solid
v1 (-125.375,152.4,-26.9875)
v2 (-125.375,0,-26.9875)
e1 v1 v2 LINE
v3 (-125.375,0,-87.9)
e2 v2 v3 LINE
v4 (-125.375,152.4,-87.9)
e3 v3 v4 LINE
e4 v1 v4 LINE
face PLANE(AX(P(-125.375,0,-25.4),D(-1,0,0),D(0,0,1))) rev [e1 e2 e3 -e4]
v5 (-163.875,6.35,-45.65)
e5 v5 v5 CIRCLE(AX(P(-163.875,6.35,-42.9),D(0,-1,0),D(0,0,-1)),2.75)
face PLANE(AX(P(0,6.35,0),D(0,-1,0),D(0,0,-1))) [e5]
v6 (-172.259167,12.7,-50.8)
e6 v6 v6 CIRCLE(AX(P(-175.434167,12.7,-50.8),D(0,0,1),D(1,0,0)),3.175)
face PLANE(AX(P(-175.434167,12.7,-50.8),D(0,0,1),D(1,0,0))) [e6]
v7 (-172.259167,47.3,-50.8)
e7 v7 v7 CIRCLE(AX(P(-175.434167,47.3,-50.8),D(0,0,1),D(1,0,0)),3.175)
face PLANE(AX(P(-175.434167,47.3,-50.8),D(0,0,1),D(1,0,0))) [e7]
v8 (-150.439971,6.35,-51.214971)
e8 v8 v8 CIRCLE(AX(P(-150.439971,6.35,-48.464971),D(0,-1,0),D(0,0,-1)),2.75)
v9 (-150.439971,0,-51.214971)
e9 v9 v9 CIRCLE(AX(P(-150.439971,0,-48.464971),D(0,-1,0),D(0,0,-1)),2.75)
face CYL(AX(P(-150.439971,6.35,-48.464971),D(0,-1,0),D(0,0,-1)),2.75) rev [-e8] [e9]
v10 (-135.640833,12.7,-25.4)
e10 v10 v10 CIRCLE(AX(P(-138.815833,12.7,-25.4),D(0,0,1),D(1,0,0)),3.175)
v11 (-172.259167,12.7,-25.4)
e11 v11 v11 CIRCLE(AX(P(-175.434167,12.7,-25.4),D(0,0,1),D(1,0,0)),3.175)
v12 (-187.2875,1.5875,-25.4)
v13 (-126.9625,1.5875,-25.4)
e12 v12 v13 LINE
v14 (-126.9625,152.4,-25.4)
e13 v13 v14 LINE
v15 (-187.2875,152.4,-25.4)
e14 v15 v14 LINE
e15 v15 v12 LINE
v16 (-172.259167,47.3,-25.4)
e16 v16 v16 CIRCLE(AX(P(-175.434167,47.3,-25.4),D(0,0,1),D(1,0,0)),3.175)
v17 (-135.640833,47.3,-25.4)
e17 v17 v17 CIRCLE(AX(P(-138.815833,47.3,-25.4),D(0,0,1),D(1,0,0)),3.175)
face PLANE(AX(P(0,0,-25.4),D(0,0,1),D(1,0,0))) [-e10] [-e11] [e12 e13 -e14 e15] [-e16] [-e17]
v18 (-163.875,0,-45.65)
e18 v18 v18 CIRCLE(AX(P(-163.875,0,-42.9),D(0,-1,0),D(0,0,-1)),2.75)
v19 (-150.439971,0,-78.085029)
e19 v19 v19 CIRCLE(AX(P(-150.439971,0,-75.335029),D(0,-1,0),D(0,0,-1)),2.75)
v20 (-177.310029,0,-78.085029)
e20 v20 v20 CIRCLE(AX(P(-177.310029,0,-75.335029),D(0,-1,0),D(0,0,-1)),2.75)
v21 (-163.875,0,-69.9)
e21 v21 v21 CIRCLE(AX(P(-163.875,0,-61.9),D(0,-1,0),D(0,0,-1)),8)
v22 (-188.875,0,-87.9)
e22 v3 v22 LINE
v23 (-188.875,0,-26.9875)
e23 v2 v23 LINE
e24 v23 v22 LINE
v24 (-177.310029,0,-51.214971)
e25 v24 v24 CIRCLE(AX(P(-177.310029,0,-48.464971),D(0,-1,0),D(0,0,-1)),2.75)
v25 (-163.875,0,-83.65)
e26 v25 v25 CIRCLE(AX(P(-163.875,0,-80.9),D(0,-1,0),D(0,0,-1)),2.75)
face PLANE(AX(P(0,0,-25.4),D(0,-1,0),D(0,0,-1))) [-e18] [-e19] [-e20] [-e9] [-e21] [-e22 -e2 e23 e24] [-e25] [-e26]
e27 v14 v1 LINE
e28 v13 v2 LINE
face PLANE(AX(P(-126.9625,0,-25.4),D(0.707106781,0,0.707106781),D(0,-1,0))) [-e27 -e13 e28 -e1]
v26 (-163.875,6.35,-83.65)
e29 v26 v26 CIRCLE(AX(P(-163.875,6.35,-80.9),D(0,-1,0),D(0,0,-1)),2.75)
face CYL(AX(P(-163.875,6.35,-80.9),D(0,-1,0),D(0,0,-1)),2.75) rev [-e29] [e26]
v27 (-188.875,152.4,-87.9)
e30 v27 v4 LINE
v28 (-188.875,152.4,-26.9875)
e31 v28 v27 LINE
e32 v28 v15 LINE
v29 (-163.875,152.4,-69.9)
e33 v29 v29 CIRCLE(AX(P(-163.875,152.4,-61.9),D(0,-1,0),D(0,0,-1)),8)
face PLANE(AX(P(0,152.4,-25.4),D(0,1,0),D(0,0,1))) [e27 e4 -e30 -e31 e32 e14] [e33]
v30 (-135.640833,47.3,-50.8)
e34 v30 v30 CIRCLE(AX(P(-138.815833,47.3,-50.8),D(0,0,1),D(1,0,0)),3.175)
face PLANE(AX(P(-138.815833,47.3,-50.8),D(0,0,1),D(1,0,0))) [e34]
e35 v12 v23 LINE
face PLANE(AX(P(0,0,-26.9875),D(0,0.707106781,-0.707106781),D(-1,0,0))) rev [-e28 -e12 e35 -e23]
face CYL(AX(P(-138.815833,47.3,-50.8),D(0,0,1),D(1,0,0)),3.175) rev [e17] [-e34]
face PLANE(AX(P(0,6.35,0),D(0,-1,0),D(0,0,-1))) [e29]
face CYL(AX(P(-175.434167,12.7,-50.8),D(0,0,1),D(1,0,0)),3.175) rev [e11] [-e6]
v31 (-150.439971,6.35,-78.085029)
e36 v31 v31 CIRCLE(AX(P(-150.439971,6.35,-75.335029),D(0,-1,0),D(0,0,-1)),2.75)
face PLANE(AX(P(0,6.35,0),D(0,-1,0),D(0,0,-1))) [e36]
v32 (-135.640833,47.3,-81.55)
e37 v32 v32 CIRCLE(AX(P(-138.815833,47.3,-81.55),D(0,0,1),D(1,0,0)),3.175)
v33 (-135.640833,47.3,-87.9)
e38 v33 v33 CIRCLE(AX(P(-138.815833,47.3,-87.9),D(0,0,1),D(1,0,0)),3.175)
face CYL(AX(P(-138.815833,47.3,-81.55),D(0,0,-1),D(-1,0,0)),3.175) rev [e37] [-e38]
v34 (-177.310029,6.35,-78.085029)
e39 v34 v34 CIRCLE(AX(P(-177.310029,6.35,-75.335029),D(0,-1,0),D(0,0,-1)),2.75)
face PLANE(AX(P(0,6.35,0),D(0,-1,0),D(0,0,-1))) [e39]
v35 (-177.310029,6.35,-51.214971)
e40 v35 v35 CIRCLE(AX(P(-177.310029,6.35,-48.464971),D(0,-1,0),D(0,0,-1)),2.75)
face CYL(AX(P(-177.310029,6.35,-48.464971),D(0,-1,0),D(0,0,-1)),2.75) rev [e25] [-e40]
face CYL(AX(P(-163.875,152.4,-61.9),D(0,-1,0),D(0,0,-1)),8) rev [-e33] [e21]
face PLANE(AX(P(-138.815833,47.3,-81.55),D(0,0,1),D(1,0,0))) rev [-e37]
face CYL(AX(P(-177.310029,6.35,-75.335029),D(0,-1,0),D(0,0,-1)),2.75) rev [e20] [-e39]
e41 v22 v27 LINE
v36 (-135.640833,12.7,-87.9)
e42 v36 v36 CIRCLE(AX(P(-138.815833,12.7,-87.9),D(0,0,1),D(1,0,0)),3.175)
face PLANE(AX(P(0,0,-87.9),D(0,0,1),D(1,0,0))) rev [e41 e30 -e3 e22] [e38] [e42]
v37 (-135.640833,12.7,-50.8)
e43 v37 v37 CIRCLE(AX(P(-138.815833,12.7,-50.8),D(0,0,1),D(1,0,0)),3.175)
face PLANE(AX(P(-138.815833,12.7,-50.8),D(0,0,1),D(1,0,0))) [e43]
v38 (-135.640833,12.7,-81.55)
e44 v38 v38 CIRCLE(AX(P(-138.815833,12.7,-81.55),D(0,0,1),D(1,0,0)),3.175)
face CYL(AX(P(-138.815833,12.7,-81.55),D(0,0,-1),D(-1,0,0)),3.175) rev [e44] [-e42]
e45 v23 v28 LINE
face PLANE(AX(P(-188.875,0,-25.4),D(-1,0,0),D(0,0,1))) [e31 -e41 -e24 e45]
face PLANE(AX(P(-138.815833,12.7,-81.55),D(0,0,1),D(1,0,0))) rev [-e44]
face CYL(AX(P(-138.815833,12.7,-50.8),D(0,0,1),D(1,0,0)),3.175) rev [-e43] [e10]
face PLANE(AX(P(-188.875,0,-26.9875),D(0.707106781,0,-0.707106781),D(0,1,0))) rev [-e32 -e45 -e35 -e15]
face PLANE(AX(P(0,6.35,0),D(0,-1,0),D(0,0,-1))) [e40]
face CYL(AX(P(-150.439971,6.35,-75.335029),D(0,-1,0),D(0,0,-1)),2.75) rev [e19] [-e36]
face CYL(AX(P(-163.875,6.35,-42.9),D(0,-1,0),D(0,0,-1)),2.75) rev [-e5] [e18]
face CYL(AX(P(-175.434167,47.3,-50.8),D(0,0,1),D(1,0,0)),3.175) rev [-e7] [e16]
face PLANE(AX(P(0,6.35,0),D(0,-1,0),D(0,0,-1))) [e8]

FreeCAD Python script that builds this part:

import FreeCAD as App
import Part
import Sketcher
Q = App.Units.Quantity


def edges_at(feature, points):
    """Names of the edges that pass closest to the given points."""
    edges = feature.Shape.Edges
    near = lambda p: min(range(len(edges)), key=lambda i: edges[i].distToShape(Part.Vertex(*p))[0])
    return sorted({f"Edge{near(p) + 1}" for p in points})

doc = App.newDocument("Part")
body = doc.addObject("PartDesign::Body", "Body")

sketch1 = doc.addObject("Sketcher::SketchObject", "Sketch")
body.addObject(sketch1)
sketch1.AttachmentSupport = (doc.XY_Plane, [""])
sketch1.MapMode = "FlatFace"
sketch1.AttachmentOffset = App.Placement(App.Vector(0, 0, -87.9), App.Rotation())
sketch1.addGeometry(Part.LineSegment(App.Vector(-125, 0, 0), App.Vector(-125, 152, 0)), False)
sketch1.addGeometry(Part.LineSegment(App.Vector(-125, 152, 0), App.Vector(-189, 152, 0)), False)
sketch1.addGeometry(Part.LineSegment(App.Vector(-189, 152, 0), App.Vector(-189, 0, 0)), False)
sketch1.addGeometry(Part.LineSegment(App.Vector(-189, 0, 0), App.Vector(-125, 0, 0)), False)
sketch1.addConstraint(Sketcher.Constraint("Coincident", 0, 2, 1, 1))
sketch1.addConstraint(Sketcher.Constraint("Coincident", 1, 2, 2, 1))
sketch1.addConstraint(Sketcher.Constraint("Coincident", 2, 2, 3, 1))
sketch1.addConstraint(Sketcher.Constraint("Coincident", 3, 2, 0, 1))
sketch1.addConstraint(Sketcher.Constraint("Vertical", 0))
sketch1.addConstraint(Sketcher.Constraint("Horizontal", 1))
sketch1.addConstraint(Sketcher.Constraint("Vertical", 2))
sketch1.addConstraint(Sketcher.Constraint("Horizontal", 3))
sketch1.addConstraint(Sketcher.Constraint("PointOnObject", 2, 2, -1))
sketch1.addConstraint(Sketcher.Constraint("DistanceY", 0, 1, 0, 2, Q("6 in")))
sketch1.addConstraint(Sketcher.Constraint("DistanceX", 1, 2, 1, 1, Q("2.5 in")))
sketch1.addConstraint(Sketcher.Constraint("DistanceX", 0, 2, -1, 1, 125.375))
pad1 = doc.addObject("PartDesign::Pad", "Pad")
body.addObject(pad1)
pad1.Profile = sketch1
pad1.Length = 62.5

sketch2 = doc.addObject("Sketcher::SketchObject", "Sketch001")
body.addObject(sketch2)
sketch2.AttachmentSupport = (doc.XY_Plane, [""])
sketch2.MapMode = "FlatFace"
sketch2.AttachmentOffset = App.Placement(App.Vector(0, 0, -1 * 25.4), App.Rotation())
sketch2.addGeometry(Part.Circle(App.Vector(-138.8, 47.3, 0), App.Vector(0, 0, 1), 3.2), False)
sketch2.addGeometry(Part.Circle(App.Vector(-138.8, 12.7, 0), App.Vector(0, 0, 1), 3.2), False)
sketch2.addGeometry(Part.Circle(App.Vector(93.6, 47.3, 0), App.Vector(0, 0, 1), 3.2), False)
sketch2.addGeometry(Part.Circle(App.Vector(131.7, 47.3, 0), App.Vector(0, 0, 1), 3.2), False)
sketch2.addGeometry(Part.Circle(App.Vector(131.7, 12.7, 0), App.Vector(0, 0, 1), 3.2), False)
sketch2.addGeometry(Part.Circle(App.Vector(93.6, 12.7, 0), App.Vector(0, 0, 1), 3.2), False)
sketch2.addGeometry(Part.Circle(App.Vector(-175.4, 47.3, 0), App.Vector(0, 0, 1), 3.2), False)
sketch2.addGeometry(Part.Circle(App.Vector(-175.4, 12.7, 0), App.Vector(0, 0, 1), 3.2), False)
sketch2.addConstraint(Sketcher.Constraint("Equal", 0, 1))
sketch2.addConstraint(Sketcher.Constraint("Equal", 1, 2))
sketch2.addConstraint(Sketcher.Constraint("Equal", 2, 3))
sketch2.addConstraint(Sketcher.Constraint("Equal", 3, 4))
sketch2.addConstraint(Sketcher.Constraint("Equal", 4, 5))
sketch2.addConstraint(Sketcher.Constraint("Equal", 5, 6))
sketch2.addConstraint(Sketcher.Constraint("Equal", 6, 7))
sketch2.addConstraint(Sketcher.Constraint("Horizontal", 0, 3, 2, 3))
sketch2.addConstraint(Sketcher.Constraint("Horizontal", 2, 3, 3, 3))
sketch2.addConstraint(Sketcher.Constraint("Horizontal", 1, 3, 4, 3))
sketch2.addConstraint(Sketcher.Constraint("Horizontal", 4, 3, 5, 3))
sketch2.addConstraint(Sketcher.Constraint("Horizontal", 3, 3, 6, 3))
sketch2.addConstraint(Sketcher.Constraint("Horizontal", 5, 3, 7, 3))
sketch2.addConstraint(Sketcher.Constraint("Vertical", 0, 3, 1, 3))
sketch2.addConstraint(Sketcher.Constraint("Vertical", 3, 3, 4, 3))
sketch2.addConstraint(Sketcher.Constraint("Vertical", 2, 3, 5, 3))
sketch2.addConstraint(Sketcher.Constraint("Vertical", 6, 3, 7, 3))
sketch2.addConstraint(Sketcher.Constraint("Diameter", 0, Q("0.25 in")))
sketch2.addConstraint(Sketcher.Constraint("DistanceY", -1, 1, 1, 3, Q("0.5 in")))
sketch2.addConstraint(Sketcher.Constraint("DistanceY", -1, 1, 0, 3, 47.3))
sketch2.addConstraint(Sketcher.Constraint("DistanceX", -1, 1, 2, 3, 93.595))
sketch2.addConstraint(Sketcher.Constraint("DistanceX", -1, 1, 3, 3, 131.655))
sketch2.addConstraint(Sketcher.Constraint("DistanceX", 0, 3, -1, 1, 138.815833))
sketch2.addConstraint(Sketcher.Constraint("DistanceX", 6, 3, -1, 1, 175.434167))
pocket1 = doc.addObject("PartDesign::Pocket", "Pocket")
body.addObject(pocket1)
pocket1.Profile = sketch2
pocket1.Length = Q("1 in")

sketch3 = doc.addObject("Sketcher::SketchObject", "Sketch002")
body.addObject(sketch3)
sketch3.AttachmentSupport = (doc.XY_Plane, [""])
sketch3.MapMode = "FlatFace"
sketch3.AttachmentOffset = App.Placement(App.Vector(0, 0, -87.9), App.Rotation())
sketch3.addGeometry(Part.Circle(App.Vector(-138.8, 47.3, 0), App.Vector(0, 0, 1), 3.2), False)
sketch3.addGeometry(Part.Circle(App.Vector(-138.8, 12.7, 0), App.Vector(0, 0, 1), 3.2), False)
sketch3.addConstraint(Sketcher.Constraint("Equal", 0, 1))
sketch3.addConstraint(Sketcher.Constraint("Vertical", 0, 3, 1, 3))
sketch3.addConstraint(Sketcher.Constraint("Diameter", 0, Q("0.25 in")))
sketch3.addConstraint(Sketcher.Constraint("DistanceY", -1, 1, 1, 3, Q("0.5 in")))
sketch3.addConstraint(Sketcher.Constraint("DistanceY", -1, 1, 0, 3, 47.3))
sketch3.addConstraint(Sketcher.Constraint("DistanceX", 0, 3, -1, 1, 138.815833))
pocket2 = doc.addObject("PartDesign::Pocket", "Pocket001")
body.addObject(pocket2)
pocket2.Profile = sketch3
pocket2.Length = Q("0.25 in")
pocket2.Reversed = True
doc.recompute()

chamfer = doc.addObject("PartDesign::Chamfer", "Chamfer")
body.addObject(chamfer)
chamfer.Base = (pocket2, edges_at(pocket2, [(-157.125, 0, -25.4), (-125.375, 76.2, -25.4), (-188.875, 76.2, -25.4)]))
chamfer.Size = Q("0.0625 in")

sketch4 = doc.addObject("Sketcher::SketchObject", "Sketch003")
body.addObject(sketch4)
sketch4.AttachmentSupport = (doc.XZ_Plane, [""])
sketch4.MapMode = "FlatFace"
sketch4.addGeometry(Part.Circle(App.Vector(-150.4, -75.3, 0), App.Vector(0, 0, 1), 2.8), False)
sketch4.addGeometry(Part.Circle(App.Vector(-163.9, -80.9, 0), App.Vector(0, 0, 1), 2.8), False)
sketch4.addGeometry(Part.Circle(App.Vector(-177.3, -75.3, 0), App.Vector(0, 0, 1), 2.8), False)
sketch4.addGeometry(Part.Circle(App.Vector(-150.4, -48.5, 0), App.Vector(0, 0, 1), 2.8), False)
sketch4.addGeometry(Part.Circle(App.Vector(-163.9, -42.9, 0), App.Vector(0, 0, 1), 2.8), False)
sketch4.addGeometry(Part.Circle(App.Vector(-177.3, -48.5, 0), App.Vector(0, 0, 1), 2.8), False)
sketch4.addConstraint(Sketcher.Constraint("Equal", 0, 1))
sketch4.addConstraint(Sketcher.Constraint("Equal", 1, 2))
sketch4.addConstraint(Sketcher.Constraint("Equal", 2, 3))
sketch4.addConstraint(Sketcher.Constraint("Equal", 3, 4))
sketch4.addConstraint(Sketcher.Constraint("Equal", 4, 5))
sketch4.addConstraint(Sketcher.Constraint("Horizontal", 0, 3, 2, 3))
sketch4.addConstraint(Sketcher.Constraint("Horizontal", 3, 3, 5, 3))
sketch4.addConstraint(Sketcher.Constraint("Vertical", 0, 3, 3, 3))
sketch4.addConstraint(Sketcher.Constraint("Vertical", 1, 3, 4, 3))
sketch4.addConstraint(Sketcher.Constraint("Vertical", 2, 3, 5, 3))
sketch4.addConstraint(Sketcher.Constraint("Diameter", 0, 5.5))
sketch4.addConstraint(Sketcher.Constraint("DistanceX", 1, 3, -1, 1, 163.875))
sketch4.addConstraint(Sketcher.Constraint("DistanceY", 1, 3, -1, 1, 80.9))
sketch4.addConstraint(Sketcher.Constraint("DistanceY", 4, 3, -1, 1, 42.9))
sketch4.addConstraint(Sketcher.Constraint("DistanceX", 0, 3, -1, 1, 150.439971))
sketch4.addConstraint(Sketcher.Constraint("DistanceY", 0, 3, -1, 1, 75.335029))
sketch4.addConstraint(Sketcher.Constraint("DistanceX", 2, 3, -1, 1, 177.310029))
sketch4.addConstraint(Sketcher.Constraint("DistanceY", 3, 3, -1, 1, 48.464971))
pocket3 = doc.addObject("PartDesign::Pocket", "Pocket002")
body.addObject(pocket3)
pocket3.Profile = sketch4
pocket3.Length = Q("0.25 in")

sketch5 = doc.addObject("Sketcher::SketchObject", "Sketch004")
body.addObject(sketch5)
sketch5.AttachmentSupport = (doc.XZ_Plane, [""])
sketch5.MapMode = "FlatFace"
sketch5.addGeometry(Part.Circle(App.Vector(-164, -62, 0), App.Vector(0, 0, 1), 8), False)
sketch5.addConstraint(Sketcher.Constraint("Diameter", 0, 16.0))
sketch5.addConstraint(Sketcher.Constraint("DistanceX", 0, 3, -1, 1, 163.875))
sketch5.addConstraint(Sketcher.Constraint("DistanceY", 0, 3, -1, 1, 61.9))
pocket4 = doc.addObject("PartDesign::Pocket", "Pocket003")
body.addObject(pocket4)
pocket4.Profile = sketch5
pocket4.Type = "ThroughAll"

doc.recompute()
